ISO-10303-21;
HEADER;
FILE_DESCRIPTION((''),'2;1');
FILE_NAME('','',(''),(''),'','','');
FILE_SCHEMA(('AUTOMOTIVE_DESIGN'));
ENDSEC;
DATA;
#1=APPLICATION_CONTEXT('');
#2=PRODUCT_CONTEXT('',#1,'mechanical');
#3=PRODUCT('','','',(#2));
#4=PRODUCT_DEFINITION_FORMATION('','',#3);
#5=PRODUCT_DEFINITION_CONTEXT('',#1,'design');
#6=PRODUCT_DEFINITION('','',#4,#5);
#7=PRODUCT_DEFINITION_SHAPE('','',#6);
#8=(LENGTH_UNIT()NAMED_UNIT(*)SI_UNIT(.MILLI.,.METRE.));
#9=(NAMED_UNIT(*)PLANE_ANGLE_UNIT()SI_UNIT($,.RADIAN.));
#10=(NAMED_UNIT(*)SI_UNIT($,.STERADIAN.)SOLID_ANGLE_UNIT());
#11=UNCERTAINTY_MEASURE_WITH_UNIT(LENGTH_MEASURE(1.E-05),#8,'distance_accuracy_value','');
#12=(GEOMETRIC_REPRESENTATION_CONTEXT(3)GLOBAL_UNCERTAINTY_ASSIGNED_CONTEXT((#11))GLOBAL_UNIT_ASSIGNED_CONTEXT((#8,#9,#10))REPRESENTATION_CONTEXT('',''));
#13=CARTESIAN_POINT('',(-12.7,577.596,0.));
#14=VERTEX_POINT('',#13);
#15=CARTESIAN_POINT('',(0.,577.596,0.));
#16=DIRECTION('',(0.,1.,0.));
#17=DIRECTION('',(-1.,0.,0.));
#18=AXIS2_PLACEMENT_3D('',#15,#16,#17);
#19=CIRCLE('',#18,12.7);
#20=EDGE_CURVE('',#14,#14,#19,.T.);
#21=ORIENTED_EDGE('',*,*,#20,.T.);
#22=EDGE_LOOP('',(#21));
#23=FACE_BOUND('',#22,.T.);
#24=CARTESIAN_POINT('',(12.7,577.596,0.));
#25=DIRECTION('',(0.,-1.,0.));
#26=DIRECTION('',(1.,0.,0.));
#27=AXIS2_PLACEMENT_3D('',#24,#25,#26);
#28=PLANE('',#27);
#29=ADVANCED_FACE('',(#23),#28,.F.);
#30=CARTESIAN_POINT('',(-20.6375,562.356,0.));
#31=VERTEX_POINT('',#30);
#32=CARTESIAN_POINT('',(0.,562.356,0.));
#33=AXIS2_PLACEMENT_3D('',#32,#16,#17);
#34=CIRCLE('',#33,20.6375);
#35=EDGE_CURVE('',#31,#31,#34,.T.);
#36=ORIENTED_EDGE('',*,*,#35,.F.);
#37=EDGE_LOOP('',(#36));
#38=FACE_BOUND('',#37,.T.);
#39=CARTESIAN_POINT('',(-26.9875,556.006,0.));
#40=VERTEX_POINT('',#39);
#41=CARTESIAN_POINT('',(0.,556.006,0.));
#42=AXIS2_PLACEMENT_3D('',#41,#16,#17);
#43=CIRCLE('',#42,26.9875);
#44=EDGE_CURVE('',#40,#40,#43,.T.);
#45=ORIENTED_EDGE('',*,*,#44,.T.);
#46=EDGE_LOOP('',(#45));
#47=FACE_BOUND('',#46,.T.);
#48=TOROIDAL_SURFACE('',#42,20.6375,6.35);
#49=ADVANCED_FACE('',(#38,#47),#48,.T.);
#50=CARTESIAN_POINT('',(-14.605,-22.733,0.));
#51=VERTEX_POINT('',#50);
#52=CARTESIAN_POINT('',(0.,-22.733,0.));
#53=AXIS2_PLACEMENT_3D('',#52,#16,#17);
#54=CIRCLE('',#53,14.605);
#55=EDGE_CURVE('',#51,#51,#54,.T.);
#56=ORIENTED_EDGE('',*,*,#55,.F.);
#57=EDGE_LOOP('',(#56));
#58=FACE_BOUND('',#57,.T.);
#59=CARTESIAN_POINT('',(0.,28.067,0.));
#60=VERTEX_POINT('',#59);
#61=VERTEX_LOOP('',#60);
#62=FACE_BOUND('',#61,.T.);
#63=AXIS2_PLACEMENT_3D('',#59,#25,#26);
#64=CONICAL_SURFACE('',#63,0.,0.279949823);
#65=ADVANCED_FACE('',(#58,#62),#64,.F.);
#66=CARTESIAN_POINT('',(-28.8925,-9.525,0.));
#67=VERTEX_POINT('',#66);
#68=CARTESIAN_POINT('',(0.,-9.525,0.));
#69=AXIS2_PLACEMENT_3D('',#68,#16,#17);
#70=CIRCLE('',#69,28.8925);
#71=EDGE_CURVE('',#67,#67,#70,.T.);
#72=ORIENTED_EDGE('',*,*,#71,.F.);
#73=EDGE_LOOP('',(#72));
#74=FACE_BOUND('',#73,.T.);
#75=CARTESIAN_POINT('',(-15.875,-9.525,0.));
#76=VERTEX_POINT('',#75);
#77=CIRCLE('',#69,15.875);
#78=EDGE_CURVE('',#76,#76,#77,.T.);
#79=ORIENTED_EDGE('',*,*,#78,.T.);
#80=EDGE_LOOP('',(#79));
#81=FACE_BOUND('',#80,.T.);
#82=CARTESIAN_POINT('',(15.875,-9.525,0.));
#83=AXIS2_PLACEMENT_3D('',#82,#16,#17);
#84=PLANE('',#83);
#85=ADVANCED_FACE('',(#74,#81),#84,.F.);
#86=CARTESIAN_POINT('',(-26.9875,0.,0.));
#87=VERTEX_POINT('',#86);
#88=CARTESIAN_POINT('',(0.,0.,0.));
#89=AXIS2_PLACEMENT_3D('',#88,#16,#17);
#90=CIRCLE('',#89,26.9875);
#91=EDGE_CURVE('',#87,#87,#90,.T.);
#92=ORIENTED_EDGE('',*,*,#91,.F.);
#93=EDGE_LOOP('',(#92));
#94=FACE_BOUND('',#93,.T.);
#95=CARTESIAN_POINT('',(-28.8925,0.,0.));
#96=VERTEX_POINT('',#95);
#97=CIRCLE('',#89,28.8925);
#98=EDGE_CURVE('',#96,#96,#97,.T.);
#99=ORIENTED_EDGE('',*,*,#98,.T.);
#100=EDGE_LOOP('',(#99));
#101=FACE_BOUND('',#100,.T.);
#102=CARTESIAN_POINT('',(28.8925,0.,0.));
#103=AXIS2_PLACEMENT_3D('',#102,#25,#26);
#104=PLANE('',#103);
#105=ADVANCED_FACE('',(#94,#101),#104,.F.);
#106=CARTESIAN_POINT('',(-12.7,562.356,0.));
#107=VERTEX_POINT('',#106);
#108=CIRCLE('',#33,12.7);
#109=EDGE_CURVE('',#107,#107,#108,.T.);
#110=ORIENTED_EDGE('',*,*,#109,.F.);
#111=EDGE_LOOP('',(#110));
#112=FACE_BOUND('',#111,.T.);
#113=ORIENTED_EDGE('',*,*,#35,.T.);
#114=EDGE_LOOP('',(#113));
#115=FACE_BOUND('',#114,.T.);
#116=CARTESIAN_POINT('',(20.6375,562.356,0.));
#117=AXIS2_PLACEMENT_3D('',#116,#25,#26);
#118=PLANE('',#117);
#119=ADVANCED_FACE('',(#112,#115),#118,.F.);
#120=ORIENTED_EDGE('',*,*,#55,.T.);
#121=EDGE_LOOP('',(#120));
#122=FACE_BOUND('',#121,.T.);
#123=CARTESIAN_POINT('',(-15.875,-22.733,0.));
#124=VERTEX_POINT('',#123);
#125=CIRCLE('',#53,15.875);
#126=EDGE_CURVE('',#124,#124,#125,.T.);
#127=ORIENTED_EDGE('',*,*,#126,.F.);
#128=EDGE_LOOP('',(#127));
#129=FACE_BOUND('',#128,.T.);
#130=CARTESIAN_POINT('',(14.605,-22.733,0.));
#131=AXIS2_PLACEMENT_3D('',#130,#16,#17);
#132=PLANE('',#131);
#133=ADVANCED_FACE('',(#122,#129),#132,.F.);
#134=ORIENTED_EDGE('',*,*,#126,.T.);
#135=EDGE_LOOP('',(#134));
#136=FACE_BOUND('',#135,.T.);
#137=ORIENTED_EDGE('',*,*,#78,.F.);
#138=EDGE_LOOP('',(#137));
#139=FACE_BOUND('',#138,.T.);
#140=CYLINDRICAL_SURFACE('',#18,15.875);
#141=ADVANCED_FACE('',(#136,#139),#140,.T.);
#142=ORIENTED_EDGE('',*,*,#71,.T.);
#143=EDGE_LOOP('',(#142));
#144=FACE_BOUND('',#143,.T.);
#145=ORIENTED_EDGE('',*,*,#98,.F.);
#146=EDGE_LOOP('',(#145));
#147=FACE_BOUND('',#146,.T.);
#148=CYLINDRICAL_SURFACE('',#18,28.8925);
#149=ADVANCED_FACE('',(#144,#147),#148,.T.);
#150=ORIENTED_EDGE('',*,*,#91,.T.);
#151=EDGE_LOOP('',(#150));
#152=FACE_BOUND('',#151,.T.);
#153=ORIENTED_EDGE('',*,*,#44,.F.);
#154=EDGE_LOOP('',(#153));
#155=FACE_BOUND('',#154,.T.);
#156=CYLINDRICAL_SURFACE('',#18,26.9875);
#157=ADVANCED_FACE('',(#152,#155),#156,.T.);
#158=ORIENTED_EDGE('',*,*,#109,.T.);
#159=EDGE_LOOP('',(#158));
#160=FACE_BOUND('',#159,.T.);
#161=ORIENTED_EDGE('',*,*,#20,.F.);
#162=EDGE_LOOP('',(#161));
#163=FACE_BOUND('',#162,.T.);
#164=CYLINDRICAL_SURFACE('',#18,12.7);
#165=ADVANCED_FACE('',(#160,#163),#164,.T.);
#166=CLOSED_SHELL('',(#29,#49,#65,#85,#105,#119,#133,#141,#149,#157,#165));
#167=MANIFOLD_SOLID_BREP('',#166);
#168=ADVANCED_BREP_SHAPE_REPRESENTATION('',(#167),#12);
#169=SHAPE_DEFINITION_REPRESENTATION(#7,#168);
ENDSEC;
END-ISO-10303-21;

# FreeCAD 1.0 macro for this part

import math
import FreeCAD as App
import Part
import Sketcher

V = App.Vector
Q = App.Units.Quantity

doc = App.newDocument("Part")
body = doc.addObject("PartDesign::Body", "Body")

# Sketch on XY plane
sketch1 = body.newObject("Sketcher::SketchObject", "Sketch")
sketch1.AttachmentSupport = (doc.getObject("XY_Plane"), [""])
sketch1.MapMode = "FlatFace"
sketch1.addGeometry([
    Part.LineSegment(V(14.6, -22.7, 0), V(15.9, -22.7, 0)),  # 0
    Part.LineSegment(V(15.9, -22.7, 0), V(15.9, -9.5, 0)),  # 1
    Part.LineSegment(V(15.9, -9.5, 0), V(28.9, -9.5, 0)),  # 2
    Part.LineSegment(V(28.9, -9.5, 0), V(28.9, 0, 0)),  # 3
    Part.LineSegment(V(28.9, 0, 0), V(27, 0, 0)),  # 4
    Part.LineSegment(V(27, 0, 0), V(27, 556, 0)),  # 5
    Part.ArcOfCircle(Part.Circle(V(20.6, 556, 0), V(0, 0, 1), 6.3), math.radians(0), math.radians(90)),  # 6
    Part.LineSegment(V(20.6, 562.4, 0), V(12.7, 562.4, 0)),  # 7
    Part.LineSegment(V(12.7, 562.4, 0), V(12.7, 577.6, 0)),  # 8
    Part.LineSegment(V(12.7, 577.6, 0), V(0, 577.6, 0)),  # 9
    Part.LineSegment(V(0, 577.6, 0), V(0, 28.1, 0)),  # 10
    Part.LineSegment(V(0, 28.1, 0), V(14.6, -22.7, 0)),  # 11
], False)
sketch1.addConstraint([
    Sketcher.Constraint("Coincident", 0, 2, 1, 1),
    Sketcher.Constraint("Coincident", 1, 2, 2, 1),
    Sketcher.Constraint("Coincident", 2, 2, 3, 1),
    Sketcher.Constraint("Coincident", 3, 2, 4, 1),
    Sketcher.Constraint("Coincident", 4, 2, 5, 1),
    Sketcher.Constraint("Tangent", 5, 2, 6, 1),
    Sketcher.Constraint("Tangent", 6, 2, 7, 1),
    Sketcher.Constraint("Coincident", 7, 2, 8, 1),
    Sketcher.Constraint("Coincident", 8, 2, 9, 1),
    Sketcher.Constraint("Coincident", 9, 2, 10, 1),
    Sketcher.Constraint("Coincident", 10, 2, 11, 1),
    Sketcher.Constraint("Coincident", 11, 2, 0, 1),
    Sketcher.Constraint("Horizontal", 0),
    Sketcher.Constraint("Vertical", 1),
    Sketcher.Constraint("Horizontal", 2),
    Sketcher.Constraint("Vertical", 3),
    Sketcher.Constraint("Horizontal", 4),
    Sketcher.Constraint("Vertical", 5),
    Sketcher.Constraint("Horizontal", 7),
    Sketcher.Constraint("Vertical", 8),
    Sketcher.Constraint("Horizontal", 9),
    Sketcher.Constraint("Vertical", 10),
    Sketcher.Constraint("PointOnObject", 3, 2, -1),
    Sketcher.Constraint("PointOnObject", 9, 2, -2),
    Sketcher.Constraint("Radius", 6, Q("0.25 in")),
    Sketcher.Constraint("DistanceX", 9, 2, 9, 1, Q("0.5 in")),
    Sketcher.Constraint("DistanceY", 8, 1, 8, 2, Q("0.6 in")),
    Sketcher.Constraint("DistanceY", 0, 2, 10, 2, Q("2 in")),
    Sketcher.Constraint("DistanceX", 0, 1, 0, 2, Q("0.05 in")),
    Sketcher.Constraint("DistanceY", 1, 1, 1, 2, Q("0.52 in")),
    Sketcher.Constraint("DistanceY", 5, 1, 5, 2, Q("21.89 in")),
    Sketcher.Constraint("DistanceX", 4, 2, 4, 1, Q("0.075 in")),
    Sketcher.Constraint("DistanceX", 7, 2, 7, 1, Q("0.3125 in")),
    Sketcher.Constraint("DistanceY", 3, 1, 3, 2, Q("0.375 in")),
    Sketcher.Constraint("DistanceX", 2, 1, 2, 2, Q("0.5125 in")),
])
revolution = body.newObject("PartDesign::Revolution", "Revolution")
revolution.Profile = sketch1
revolution.ReferenceAxis = (sketch1, ["V_Axis"])
revolution.Angle = 360

doc.recompute()
